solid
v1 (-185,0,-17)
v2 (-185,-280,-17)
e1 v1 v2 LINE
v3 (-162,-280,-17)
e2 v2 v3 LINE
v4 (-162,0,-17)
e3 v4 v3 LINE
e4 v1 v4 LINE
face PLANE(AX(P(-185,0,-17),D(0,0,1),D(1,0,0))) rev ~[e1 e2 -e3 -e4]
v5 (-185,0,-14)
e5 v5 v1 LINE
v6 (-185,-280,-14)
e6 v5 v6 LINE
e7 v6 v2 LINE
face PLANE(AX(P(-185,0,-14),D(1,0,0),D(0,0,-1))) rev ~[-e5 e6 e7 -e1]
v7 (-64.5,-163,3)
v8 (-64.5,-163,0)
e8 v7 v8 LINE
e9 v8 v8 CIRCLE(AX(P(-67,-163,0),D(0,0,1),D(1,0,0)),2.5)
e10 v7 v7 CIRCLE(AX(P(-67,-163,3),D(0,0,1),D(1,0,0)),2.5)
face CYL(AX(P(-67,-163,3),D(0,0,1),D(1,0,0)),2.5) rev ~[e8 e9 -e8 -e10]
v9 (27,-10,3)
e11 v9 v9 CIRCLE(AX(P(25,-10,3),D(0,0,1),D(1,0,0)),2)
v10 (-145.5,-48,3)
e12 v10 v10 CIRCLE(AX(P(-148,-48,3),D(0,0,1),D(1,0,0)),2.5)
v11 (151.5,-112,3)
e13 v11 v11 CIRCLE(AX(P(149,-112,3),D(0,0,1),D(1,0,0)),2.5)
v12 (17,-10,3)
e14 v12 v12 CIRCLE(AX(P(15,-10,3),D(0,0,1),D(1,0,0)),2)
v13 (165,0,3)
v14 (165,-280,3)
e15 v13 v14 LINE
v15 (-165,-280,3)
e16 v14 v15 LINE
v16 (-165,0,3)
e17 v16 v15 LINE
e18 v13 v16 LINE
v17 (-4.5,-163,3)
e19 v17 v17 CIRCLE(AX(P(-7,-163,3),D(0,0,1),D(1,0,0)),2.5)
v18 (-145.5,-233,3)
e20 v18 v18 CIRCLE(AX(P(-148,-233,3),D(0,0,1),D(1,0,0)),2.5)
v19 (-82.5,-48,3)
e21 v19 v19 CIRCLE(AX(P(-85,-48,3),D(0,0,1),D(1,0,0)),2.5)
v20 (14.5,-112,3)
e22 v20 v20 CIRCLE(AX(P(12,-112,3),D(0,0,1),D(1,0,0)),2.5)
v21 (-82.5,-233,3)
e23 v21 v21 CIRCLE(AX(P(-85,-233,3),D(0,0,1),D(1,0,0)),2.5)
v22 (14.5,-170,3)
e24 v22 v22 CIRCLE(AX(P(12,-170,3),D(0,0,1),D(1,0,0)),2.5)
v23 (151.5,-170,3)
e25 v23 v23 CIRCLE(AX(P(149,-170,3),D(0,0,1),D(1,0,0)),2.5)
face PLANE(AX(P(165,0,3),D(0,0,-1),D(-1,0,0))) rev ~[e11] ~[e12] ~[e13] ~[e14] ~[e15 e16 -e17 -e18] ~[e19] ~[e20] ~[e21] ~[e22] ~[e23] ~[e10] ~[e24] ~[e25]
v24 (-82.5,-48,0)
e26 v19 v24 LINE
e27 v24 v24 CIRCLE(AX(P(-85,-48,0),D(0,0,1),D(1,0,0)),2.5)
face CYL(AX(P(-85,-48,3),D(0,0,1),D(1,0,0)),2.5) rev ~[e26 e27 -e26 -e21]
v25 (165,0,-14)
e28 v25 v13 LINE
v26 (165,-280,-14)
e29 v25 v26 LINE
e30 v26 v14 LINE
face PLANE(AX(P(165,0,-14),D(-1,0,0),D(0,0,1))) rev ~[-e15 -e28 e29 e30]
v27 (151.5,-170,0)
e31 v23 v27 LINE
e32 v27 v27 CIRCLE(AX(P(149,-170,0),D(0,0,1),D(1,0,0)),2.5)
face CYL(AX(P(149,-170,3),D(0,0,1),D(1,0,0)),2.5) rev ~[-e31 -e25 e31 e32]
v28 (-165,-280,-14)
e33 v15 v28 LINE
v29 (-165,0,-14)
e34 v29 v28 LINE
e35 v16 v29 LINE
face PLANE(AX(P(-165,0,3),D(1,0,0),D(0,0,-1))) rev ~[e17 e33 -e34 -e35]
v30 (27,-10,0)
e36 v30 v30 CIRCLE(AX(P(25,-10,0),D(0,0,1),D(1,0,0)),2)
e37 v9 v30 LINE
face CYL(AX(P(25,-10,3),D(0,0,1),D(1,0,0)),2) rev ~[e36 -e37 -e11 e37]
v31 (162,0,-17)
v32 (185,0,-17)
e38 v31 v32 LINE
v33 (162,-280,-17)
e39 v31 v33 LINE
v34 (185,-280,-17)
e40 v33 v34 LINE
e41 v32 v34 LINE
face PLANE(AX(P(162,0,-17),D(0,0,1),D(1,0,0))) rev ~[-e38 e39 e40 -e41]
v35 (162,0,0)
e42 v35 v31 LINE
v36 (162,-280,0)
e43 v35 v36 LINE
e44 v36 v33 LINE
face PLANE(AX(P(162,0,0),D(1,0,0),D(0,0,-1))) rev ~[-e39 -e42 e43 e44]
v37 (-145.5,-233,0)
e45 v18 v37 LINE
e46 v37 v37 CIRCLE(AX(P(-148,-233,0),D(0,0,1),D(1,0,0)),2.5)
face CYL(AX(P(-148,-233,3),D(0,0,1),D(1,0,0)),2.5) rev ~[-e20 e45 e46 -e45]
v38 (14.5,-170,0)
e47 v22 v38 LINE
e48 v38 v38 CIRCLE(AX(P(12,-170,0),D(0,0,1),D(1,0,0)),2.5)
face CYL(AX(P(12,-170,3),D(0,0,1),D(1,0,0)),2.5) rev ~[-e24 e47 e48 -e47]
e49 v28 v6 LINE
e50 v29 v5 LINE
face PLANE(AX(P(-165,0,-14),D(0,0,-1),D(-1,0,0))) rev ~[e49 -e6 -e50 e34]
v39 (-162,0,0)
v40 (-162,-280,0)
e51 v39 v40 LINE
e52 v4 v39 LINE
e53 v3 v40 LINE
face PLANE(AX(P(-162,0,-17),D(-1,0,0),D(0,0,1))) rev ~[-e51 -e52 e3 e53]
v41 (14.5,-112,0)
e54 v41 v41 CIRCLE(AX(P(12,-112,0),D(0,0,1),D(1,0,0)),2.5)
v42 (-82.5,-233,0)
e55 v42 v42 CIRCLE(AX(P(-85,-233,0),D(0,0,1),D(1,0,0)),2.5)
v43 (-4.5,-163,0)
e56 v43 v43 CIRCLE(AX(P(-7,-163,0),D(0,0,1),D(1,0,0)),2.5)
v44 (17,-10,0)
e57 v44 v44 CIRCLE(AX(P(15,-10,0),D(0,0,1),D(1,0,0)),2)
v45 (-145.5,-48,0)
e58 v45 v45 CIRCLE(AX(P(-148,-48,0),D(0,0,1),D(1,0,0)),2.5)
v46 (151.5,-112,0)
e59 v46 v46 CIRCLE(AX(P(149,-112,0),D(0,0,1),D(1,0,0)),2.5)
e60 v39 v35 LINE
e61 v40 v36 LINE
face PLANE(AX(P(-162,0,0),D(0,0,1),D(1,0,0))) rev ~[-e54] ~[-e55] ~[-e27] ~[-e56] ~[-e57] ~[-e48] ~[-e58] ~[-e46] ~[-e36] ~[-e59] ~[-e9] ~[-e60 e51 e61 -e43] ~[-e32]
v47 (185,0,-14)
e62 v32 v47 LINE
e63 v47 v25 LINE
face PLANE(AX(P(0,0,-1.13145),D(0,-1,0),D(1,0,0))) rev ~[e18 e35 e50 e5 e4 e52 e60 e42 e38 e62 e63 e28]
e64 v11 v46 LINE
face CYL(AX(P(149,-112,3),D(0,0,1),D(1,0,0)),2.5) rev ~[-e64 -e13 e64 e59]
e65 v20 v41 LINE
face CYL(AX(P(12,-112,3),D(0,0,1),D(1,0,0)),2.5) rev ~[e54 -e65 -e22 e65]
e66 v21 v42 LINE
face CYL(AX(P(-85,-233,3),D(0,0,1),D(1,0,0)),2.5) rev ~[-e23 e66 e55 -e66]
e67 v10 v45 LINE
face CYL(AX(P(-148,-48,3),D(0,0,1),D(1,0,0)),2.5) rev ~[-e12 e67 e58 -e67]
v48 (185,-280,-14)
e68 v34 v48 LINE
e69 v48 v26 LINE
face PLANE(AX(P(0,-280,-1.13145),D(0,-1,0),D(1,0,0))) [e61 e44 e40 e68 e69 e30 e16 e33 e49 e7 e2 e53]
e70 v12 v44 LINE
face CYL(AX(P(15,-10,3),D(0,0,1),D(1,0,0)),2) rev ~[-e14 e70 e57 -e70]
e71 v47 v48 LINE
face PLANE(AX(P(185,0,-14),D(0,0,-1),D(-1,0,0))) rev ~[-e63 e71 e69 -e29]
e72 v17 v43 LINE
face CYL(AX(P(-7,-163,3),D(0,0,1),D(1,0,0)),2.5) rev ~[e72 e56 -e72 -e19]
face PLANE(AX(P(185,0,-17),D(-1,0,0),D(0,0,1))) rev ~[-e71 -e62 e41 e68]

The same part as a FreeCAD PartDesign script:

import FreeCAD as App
import Part
import Sketcher

V = App.Vector
Q = App.Units.Quantity


def add_polygon(sketch, points):
    """Adds a closed chain of lines whose ends are joined by coincident constraints."""
    first, n = sketch.GeometryCount, len(points)
    for a, b in zip(points, points[1:] + points[:1]):
        sketch.addGeometry(Part.LineSegment(App.Vector(*a, 0), App.Vector(*b, 0)), False)
    for i in range(n):
        sketch.addConstraint(Sketcher.Constraint("Coincident", first + i, 2, first + (i + 1) % n, 1))

doc = App.newDocument("Part")
body = doc.addObject("PartDesign::Body", "Body")

# Sketch on XZ plane
sketch1 = doc.addObject("Sketcher::SketchObject", "Sketch")
body.addObject(sketch1)
sketch1.AttachmentSupport = (doc.XZ_Plane, [""])
sketch1.MapMode = "FlatFace"
add_polygon(sketch1, [(-162, -17), (-162, 0), (162, 0), (162, -17), (185, -17), (185, -14), (165, -14), (165, 3), (-165, 3), (-165, -14), (-185, -14), (-185, -17)])  # lines 0-11
sketch1.addConstraint(Sketcher.Constraint("Vertical", 0))
sketch1.addConstraint(Sketcher.Constraint("Horizontal", 1))
sketch1.addConstraint(Sketcher.Constraint("Vertical", 2))
sketch1.addConstraint(Sketcher.Constraint("Horizontal", 3))
sketch1.addConstraint(Sketcher.Constraint("Vertical", 4))
sketch1.addConstraint(Sketcher.Constraint("Horizontal", 5))
sketch1.addConstraint(Sketcher.Constraint("Vertical", 6))
sketch1.addConstraint(Sketcher.Constraint("Horizontal", 7))
sketch1.addConstraint(Sketcher.Constraint("Vertical", 8))
sketch1.addConstraint(Sketcher.Constraint("Horizontal", 9))
sketch1.addConstraint(Sketcher.Constraint("Vertical", 10))
sketch1.addConstraint(Sketcher.Constraint("Horizontal", 11))
sketch1.addConstraint(Sketcher.Constraint("Symmetric", 0, 2, 1, 2, -1, 1))
sketch1.addConstraint(Sketcher.Constraint("Symmetric", 5, 2, 8, 2, -2))
sketch1.addConstraint(Sketcher.Constraint("Symmetric", 3, 2, 10, 2, -2))
sketch1.addConstraint(Sketcher.Constraint("Equal", 2, 6))
sketch1.addConstraint(Sketcher.Constraint("DistanceX", 1, 1, 1, 2, Q("324 mm")))
sketch1.addConstraint(Sketcher.Constraint("DistanceX", 3, 1, 3, 2, Q("23 mm")))
sketch1.addConstraint(Sketcher.Constraint("DistanceX", 5, 2, 5, 1, Q("20 mm")))
sketch1.addConstraint(Sketcher.Constraint("DistanceY", 0, 1, 0, 2, Q("17 mm")))
sketch1.addConstraint(Sketcher.Constraint("DistanceY", 4, 1, 4, 2, Q("3 mm")))
pad1 = doc.addObject("PartDesign::Pad", "Pad")
body.addObject(pad1)
pad1.Profile = sketch1
pad1.Length = 280

# Sketch on XY plane
sketch2 = doc.addObject("Sketcher::SketchObject", "Sketch001")
body.addObject(sketch2)
sketch2.AttachmentSupport = (doc.XY_Plane, [""])
sketch2.MapMode = "FlatFace"
sketch2.AttachmentOffset = App.Placement(V(0, 0, 3), App.Rotation())
sketch2.addGeometry(Part.Circle(V(-148, -48, 0), V(0, 0, 1), 2.5), False)
sketch2.addGeometry(Part.Circle(V(15, -10, 0), V(0, 0, 1), 2), False)
sketch2.addGeometry(Part.Circle(V(25, -10, 0), V(0, 0, 1), 2), False)
sketch2.addGeometry(Part.Circle(V(-85, -48, 0), V(0, 0, 1), 2.5), False)
sketch2.addGeometry(Part.Circle(V(-85, -233, 0), V(0, 0, 1), 2.5), False)
sketch2.addGeometry(Part.Circle(V(-148, -233, 0), V(0, 0, 1), 2.5), False)
sketch2.addGeometry(Part.Circle(V(149, -112, 0), V(0, 0, 1), 2.5), False)
sketch2.addGeometry(Part.Circle(V(12, -112, 0), V(0, 0, 1), 2.5), False)
sketch2.addGeometry(Part.Circle(V(12, -170, 0), V(0, 0, 1), 2.5), False)
sketch2.addGeometry(Part.Circle(V(149, -170, 0), V(0, 0, 1), 2.5), False)
sketch2.addGeometry(Part.Circle(V(-67, -163, 0), V(0, 0, 1), 2.5), False)
sketch2.addGeometry(Part.Circle(V(-7, -163, 0), V(0, 0, 1), 2.5), False)
sketch2.addConstraint(Sketcher.Constraint("Equal", 1, 2))
sketch2.addConstraint(Sketcher.Constraint("Equal", 0, 3))
sketch2.addConstraint(Sketcher.Constraint("Equal", 3, 4))
sketch2.addConstraint(Sketcher.Constraint("Equal", 4, 5))
sketch2.addConstraint(Sketcher.Constraint("Equal", 5, 6))
sketch2.addConstraint(Sketcher.Constraint("Equal", 6, 7))
sketch2.addConstraint(Sketcher.Constraint("Equal", 7, 8))
sketch2.addConstraint(Sketcher.Constraint("Equal", 8, 9))
sketch2.addConstraint(Sketcher.Constraint("Equal", 9, 10))
sketch2.addConstraint(Sketcher.Constraint("Equal", 10, 11))
sketch2.addConstraint(Sketcher.Constraint("Horizontal", 1, 3, 2, 3))
sketch2.addConstraint(Sketcher.Constraint("Horizontal", 0, 3, 3, 3))
sketch2.addConstraint(Sketcher.Constraint("Horizontal", 4, 3, 5, 3))
sketch2.addConstraint(Sketcher.Constraint("Horizontal", 6, 3, 7, 3))
sketch2.addConstraint(Sketcher.Constraint("Horizontal", 8, 3, 9, 3))
sketch2.addConstraint(Sketcher.Constraint("Horizontal", 10, 3, 11, 3))
sketch2.addConstraint(Sketcher.Constraint("Vertical", 3, 3, 4, 3))
sketch2.addConstraint(Sketcher.Constraint("Vertical", 0, 3, 5, 3))
sketch2.addConstraint(Sketcher.Constraint("Vertical", 7, 3, 8, 3))
sketch2.addConstraint(Sketcher.Constraint("Vertical", 6, 3, 9, 3))
sketch2.addConstraint(Sketcher.Constraint("Diameter", 0, Q("5 mm")))
sketch2.addConstraint(Sketcher.Constraint("Diameter", 1, Q("4 mm")))
sketch2.addConstraint(Sketcher.Constraint("DistanceX", 0, 3, -1, 1, Q("148 mm")))
sketch2.addConstraint(Sketcher.Constraint("DistanceY", 0, 3, -1, 1, Q("48 mm")))
sketch2.addConstraint(Sketcher.Constraint("DistanceX", -1, 1, 1, 3, Q("15 mm")))
sketch2.addConstraint(Sketcher.Constraint("DistanceY", 1, 3, -1, 1, Q("10 mm")))
sketch2.addConstraint(Sketcher.Constraint("DistanceX", -1, 1, 2, 3, Q("25 mm")))
sketch2.addConstraint(Sketcher.Constraint("DistanceX", 3, 3, -1, 1, Q("85 mm")))
sketch2.addConstraint(Sketcher.Constraint("DistanceY", 4, 3, -1, 1, Q("233 mm")))
sketch2.addConstraint(Sketcher.Constraint("DistanceX", -1, 1, 6, 3, Q("149 mm")))
sketch2.addConstraint(Sketcher.Constraint("DistanceY", 6, 3, -1, 1, Q("112 mm")))
sketch2.addConstraint(Sketcher.Constraint("DistanceX", -1, 1, 7, 3, Q("12 mm")))
sketch2.addConstraint(Sketcher.Constraint("DistanceY", 8, 3, -1, 1, Q("170 mm")))
sketch2.addConstraint(Sketcher.Constraint("DistanceX", 10, 3, -1, 1, Q("67 mm")))
sketch2.addConstraint(Sketcher.Constraint("DistanceY", 10, 3, -1, 1, Q("163 mm")))
sketch2.addConstraint(Sketcher.Constraint("DistanceX", 11, 3, -1, 1, Q("7 mm")))
pocket1 = doc.addObject("PartDesign::Pocket", "Pocket")
body.addObject(pocket1)
pocket1.Profile = sketch2
pocket1.Length = 25

doc.recompute()
